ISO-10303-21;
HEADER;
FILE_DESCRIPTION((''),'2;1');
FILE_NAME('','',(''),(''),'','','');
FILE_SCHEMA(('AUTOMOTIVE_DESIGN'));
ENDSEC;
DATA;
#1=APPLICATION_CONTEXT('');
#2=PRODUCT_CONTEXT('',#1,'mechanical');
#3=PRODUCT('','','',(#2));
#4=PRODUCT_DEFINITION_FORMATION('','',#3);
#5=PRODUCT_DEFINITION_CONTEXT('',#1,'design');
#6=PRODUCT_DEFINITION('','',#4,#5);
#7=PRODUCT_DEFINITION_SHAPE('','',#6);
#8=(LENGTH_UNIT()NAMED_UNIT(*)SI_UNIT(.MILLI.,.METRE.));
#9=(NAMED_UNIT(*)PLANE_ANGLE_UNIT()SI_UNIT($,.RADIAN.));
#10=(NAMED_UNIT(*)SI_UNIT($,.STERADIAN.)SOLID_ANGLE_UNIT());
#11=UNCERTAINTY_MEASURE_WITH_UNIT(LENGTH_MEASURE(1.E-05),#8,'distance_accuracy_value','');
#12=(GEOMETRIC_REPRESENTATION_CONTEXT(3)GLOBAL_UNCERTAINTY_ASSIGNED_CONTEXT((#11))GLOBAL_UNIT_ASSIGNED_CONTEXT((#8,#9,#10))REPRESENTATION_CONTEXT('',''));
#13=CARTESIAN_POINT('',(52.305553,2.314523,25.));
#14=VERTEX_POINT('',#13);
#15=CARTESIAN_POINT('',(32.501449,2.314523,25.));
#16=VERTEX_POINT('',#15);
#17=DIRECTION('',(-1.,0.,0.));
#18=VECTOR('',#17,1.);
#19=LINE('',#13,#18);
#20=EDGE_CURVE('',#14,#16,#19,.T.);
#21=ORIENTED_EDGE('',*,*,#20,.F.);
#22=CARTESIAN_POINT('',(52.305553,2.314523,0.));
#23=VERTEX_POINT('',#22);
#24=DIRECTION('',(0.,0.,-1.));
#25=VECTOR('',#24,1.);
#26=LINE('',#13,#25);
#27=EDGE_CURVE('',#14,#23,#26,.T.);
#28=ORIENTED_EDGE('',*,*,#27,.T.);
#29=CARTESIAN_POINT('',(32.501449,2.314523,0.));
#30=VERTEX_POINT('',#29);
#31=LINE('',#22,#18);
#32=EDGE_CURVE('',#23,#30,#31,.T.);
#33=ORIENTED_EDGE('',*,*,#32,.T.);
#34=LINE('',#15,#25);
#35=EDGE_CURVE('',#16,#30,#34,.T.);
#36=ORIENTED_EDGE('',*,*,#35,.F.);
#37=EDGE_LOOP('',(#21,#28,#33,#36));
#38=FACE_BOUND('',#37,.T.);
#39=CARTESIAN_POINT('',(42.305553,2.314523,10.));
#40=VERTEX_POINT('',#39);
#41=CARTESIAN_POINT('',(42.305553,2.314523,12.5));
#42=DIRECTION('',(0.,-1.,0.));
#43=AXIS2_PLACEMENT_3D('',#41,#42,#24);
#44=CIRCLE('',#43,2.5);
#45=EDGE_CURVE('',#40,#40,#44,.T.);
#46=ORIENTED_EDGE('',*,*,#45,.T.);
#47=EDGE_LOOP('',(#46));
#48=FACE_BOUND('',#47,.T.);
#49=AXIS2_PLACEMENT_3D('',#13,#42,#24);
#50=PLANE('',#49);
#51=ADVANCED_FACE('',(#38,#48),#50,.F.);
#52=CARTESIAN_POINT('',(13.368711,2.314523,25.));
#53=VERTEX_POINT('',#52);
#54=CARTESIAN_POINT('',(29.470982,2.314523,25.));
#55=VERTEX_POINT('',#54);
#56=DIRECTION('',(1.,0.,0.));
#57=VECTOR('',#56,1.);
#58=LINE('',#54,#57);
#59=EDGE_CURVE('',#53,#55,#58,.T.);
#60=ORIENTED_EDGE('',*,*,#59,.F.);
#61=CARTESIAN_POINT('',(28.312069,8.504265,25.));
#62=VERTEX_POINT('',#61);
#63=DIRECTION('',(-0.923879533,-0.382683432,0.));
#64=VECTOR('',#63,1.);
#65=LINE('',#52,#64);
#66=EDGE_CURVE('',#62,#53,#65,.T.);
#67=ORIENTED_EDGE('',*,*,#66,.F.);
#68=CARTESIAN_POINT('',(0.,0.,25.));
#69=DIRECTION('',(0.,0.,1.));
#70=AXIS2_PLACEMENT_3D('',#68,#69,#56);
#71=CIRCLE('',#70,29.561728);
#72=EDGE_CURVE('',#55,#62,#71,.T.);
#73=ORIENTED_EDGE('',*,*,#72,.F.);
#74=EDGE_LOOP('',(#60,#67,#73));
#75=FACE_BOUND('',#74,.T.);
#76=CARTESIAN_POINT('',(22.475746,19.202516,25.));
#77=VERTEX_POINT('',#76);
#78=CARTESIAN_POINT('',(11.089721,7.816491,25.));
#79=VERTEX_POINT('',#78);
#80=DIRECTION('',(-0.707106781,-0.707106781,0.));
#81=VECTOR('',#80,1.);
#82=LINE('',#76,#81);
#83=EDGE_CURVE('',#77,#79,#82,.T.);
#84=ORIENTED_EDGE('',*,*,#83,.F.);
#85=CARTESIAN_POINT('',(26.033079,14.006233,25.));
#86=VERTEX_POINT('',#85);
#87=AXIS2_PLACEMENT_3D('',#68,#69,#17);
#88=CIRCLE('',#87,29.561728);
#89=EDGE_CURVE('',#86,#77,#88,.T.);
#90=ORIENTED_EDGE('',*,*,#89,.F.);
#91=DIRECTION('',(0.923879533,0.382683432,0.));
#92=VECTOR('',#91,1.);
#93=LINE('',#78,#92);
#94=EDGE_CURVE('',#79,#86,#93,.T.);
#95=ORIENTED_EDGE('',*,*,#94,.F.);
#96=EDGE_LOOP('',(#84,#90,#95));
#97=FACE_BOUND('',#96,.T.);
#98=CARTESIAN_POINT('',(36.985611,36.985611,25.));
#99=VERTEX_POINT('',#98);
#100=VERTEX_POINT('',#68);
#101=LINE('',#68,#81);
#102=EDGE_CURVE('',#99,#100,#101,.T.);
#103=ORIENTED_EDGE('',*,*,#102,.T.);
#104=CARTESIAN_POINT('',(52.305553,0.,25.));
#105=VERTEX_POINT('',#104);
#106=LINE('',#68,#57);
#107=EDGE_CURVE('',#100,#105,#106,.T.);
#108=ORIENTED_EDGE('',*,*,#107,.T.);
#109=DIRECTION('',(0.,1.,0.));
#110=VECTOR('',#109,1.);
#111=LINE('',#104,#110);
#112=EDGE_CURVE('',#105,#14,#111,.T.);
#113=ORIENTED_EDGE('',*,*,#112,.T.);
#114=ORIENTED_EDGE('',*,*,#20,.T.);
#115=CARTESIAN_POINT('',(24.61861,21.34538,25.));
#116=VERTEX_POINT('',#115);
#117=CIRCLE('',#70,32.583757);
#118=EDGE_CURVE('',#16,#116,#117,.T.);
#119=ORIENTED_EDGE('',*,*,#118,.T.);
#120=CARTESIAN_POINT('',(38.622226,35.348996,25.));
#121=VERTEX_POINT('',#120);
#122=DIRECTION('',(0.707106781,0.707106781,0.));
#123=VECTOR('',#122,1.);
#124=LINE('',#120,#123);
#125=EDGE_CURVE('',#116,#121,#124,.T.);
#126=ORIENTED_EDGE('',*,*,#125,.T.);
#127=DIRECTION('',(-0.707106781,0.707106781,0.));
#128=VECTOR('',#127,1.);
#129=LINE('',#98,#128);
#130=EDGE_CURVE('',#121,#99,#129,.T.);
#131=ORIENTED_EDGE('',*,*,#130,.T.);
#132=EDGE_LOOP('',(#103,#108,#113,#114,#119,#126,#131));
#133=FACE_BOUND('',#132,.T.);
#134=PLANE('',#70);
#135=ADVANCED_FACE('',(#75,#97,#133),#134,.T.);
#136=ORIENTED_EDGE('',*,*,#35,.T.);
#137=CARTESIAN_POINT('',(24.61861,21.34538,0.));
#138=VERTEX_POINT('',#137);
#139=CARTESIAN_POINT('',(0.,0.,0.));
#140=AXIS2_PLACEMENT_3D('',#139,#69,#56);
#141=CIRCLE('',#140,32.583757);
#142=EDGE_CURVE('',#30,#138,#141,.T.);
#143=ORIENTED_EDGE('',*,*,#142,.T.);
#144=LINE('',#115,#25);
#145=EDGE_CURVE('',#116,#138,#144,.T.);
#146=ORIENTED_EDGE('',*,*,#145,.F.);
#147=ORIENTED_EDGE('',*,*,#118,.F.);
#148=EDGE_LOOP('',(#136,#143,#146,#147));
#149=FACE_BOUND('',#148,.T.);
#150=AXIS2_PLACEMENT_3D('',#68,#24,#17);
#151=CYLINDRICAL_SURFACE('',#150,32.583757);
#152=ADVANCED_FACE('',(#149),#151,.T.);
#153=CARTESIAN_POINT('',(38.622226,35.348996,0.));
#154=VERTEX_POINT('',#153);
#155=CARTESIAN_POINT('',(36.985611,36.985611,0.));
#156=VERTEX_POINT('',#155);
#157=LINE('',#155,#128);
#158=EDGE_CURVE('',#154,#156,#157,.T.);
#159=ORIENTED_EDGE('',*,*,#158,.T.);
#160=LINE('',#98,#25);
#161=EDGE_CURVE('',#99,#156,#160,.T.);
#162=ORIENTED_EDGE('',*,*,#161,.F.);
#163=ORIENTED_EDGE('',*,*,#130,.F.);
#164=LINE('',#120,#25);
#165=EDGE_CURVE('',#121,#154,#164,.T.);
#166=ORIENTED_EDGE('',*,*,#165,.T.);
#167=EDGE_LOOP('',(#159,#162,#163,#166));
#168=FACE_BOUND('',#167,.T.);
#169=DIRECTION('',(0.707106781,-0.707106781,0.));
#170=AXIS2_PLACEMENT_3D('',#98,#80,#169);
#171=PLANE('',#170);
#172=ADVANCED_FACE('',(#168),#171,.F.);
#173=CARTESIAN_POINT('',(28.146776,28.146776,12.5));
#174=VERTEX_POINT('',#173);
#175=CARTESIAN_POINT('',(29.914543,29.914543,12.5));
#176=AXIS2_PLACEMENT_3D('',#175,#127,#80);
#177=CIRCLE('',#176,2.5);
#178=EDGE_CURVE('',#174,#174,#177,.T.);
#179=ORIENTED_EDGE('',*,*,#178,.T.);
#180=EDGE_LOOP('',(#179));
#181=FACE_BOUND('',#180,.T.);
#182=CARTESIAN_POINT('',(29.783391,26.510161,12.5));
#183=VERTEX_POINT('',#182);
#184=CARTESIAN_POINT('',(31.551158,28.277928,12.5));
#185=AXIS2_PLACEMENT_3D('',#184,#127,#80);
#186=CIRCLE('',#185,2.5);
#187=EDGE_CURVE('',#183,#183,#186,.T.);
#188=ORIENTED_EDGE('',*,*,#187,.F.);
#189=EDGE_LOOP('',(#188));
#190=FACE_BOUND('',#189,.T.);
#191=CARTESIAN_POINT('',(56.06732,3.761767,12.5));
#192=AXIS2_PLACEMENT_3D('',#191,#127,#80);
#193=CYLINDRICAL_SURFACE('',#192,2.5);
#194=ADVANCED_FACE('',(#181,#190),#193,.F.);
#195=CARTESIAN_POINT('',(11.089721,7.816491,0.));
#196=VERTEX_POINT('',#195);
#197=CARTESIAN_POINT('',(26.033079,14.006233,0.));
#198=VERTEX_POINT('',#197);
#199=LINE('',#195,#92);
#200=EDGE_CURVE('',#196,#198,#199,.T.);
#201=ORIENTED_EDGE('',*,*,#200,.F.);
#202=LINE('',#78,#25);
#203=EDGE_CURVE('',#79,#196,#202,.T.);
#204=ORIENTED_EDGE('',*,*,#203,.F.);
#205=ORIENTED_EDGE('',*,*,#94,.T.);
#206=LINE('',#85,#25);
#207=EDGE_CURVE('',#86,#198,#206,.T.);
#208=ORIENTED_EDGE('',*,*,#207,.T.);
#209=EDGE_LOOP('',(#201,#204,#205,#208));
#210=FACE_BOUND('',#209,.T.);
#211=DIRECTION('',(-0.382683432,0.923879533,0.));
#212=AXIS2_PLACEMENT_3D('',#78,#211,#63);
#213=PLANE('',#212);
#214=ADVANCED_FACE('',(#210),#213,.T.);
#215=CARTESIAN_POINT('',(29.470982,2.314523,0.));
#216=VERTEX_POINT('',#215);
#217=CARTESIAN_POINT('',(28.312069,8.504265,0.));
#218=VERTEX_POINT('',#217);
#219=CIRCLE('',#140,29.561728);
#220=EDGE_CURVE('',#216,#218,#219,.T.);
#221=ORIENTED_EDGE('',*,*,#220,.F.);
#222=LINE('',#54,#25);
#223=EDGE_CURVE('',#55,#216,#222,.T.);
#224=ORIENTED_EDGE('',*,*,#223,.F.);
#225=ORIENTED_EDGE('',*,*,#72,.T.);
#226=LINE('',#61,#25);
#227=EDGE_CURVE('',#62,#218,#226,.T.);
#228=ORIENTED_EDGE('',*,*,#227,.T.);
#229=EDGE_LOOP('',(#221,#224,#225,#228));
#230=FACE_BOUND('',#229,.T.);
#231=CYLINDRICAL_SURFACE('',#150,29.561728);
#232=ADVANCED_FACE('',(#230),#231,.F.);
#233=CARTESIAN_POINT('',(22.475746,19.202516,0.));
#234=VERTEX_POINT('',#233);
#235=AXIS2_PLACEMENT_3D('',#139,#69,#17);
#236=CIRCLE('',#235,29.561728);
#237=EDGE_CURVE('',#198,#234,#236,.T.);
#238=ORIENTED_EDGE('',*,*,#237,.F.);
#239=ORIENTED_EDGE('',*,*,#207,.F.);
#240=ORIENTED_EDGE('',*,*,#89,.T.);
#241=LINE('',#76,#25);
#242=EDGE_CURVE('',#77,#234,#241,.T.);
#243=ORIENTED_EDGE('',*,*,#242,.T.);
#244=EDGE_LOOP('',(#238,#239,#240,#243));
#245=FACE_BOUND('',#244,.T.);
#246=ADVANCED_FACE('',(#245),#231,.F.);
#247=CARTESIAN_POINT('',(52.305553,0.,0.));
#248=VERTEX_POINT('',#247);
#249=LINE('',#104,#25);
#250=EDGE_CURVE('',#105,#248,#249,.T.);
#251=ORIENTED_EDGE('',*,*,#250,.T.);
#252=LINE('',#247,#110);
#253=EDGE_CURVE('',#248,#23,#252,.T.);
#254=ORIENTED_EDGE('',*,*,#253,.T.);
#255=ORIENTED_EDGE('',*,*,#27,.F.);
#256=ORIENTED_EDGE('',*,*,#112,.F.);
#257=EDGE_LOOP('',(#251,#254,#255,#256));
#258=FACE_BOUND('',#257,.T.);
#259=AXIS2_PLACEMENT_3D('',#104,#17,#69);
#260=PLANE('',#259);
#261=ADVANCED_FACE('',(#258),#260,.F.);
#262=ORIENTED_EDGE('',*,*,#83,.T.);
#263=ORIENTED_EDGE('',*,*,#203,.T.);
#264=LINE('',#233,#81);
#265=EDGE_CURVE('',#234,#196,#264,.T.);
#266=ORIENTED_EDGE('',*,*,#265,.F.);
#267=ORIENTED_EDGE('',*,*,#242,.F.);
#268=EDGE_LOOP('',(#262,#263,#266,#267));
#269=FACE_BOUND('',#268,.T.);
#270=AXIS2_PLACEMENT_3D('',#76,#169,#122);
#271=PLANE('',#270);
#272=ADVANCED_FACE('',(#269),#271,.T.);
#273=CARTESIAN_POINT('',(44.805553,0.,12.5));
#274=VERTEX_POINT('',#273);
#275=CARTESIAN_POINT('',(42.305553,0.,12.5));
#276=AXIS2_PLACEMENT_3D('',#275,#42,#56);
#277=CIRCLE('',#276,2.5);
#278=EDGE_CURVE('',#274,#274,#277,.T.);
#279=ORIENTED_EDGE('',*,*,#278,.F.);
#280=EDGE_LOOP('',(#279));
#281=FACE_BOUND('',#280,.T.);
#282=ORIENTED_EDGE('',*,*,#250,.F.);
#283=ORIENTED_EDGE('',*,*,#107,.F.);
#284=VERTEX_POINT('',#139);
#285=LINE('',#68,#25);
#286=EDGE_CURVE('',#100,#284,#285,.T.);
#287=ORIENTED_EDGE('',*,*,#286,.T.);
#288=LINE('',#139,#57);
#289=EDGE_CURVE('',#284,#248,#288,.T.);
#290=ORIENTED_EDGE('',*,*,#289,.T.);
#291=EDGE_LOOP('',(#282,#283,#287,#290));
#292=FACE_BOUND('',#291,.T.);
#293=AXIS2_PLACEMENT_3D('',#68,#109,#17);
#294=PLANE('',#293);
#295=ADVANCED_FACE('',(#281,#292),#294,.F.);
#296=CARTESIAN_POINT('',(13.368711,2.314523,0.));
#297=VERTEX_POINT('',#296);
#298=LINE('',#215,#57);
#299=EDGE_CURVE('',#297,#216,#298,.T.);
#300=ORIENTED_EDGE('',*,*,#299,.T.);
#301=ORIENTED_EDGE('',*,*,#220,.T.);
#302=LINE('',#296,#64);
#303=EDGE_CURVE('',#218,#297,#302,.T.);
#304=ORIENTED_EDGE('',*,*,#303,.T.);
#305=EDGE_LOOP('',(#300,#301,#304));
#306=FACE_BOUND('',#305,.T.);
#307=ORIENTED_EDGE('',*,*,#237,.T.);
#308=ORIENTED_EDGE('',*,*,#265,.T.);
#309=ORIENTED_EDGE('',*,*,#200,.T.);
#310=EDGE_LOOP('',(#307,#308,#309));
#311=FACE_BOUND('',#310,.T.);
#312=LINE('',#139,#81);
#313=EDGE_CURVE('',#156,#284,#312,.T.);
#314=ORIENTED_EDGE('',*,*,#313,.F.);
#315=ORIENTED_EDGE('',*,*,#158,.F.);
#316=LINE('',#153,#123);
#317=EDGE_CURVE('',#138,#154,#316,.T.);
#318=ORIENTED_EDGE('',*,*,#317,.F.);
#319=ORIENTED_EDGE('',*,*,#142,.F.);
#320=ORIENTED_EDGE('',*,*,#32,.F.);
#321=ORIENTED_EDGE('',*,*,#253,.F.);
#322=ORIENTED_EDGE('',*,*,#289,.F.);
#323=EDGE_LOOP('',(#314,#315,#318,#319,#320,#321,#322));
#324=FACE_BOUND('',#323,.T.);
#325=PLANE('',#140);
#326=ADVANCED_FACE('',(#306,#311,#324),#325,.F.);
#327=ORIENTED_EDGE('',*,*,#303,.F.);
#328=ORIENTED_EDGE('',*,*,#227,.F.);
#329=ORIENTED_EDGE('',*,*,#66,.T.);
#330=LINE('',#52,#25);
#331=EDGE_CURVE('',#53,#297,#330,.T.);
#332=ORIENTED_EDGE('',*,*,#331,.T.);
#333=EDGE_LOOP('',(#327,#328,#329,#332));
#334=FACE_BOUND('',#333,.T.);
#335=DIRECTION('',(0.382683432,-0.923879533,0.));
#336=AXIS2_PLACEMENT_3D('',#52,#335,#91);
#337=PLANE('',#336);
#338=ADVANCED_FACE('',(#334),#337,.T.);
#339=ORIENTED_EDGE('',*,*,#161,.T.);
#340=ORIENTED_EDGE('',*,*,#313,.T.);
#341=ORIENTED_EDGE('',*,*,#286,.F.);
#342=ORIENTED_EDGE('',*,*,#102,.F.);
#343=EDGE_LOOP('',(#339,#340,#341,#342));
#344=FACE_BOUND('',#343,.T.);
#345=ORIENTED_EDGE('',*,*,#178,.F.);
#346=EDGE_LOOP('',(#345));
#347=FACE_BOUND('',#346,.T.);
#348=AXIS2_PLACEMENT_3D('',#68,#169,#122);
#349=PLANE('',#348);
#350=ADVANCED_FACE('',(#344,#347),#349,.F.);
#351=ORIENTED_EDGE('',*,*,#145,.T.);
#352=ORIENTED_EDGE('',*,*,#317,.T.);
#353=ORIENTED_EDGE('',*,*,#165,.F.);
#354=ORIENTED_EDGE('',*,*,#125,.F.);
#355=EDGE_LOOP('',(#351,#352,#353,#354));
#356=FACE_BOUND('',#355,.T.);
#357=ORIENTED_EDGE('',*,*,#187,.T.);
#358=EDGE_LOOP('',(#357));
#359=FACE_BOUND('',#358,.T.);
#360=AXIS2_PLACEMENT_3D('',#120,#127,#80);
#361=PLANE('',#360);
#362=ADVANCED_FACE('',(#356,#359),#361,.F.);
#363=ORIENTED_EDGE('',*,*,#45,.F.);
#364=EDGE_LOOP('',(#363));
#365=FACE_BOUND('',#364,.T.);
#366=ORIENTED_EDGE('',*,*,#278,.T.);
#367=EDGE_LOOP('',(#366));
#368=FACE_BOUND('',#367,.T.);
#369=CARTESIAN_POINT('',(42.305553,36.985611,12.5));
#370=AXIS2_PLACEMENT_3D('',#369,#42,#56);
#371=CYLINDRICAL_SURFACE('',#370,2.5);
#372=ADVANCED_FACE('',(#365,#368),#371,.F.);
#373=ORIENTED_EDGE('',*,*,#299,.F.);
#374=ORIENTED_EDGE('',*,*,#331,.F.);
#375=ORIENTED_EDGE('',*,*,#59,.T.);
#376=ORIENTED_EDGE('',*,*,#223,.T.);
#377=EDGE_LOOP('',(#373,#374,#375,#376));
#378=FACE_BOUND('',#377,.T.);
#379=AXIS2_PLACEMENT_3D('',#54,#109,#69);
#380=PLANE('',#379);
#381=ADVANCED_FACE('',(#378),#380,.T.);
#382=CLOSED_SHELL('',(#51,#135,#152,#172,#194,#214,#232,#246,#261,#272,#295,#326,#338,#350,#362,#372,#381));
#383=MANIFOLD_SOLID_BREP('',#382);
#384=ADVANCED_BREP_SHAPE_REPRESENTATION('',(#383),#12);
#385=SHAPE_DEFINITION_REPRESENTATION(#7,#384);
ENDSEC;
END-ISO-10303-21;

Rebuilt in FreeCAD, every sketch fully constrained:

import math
import FreeCAD as App
import Part
import Sketcher

V = App.Vector
Q = App.Units.Quantity

doc = App.newDocument("Part")
body = doc.addObject("PartDesign::Body", "Body")

# Sketch on XY plane
sketch1 = body.newObject("Sketcher::SketchObject", "Sketch")
sketch1.AttachmentSupport = (doc.getObject("XY_Plane"), [""])
sketch1.MapMode = "FlatFace"
sketch1.addGeometry([
    Part.LineSegment(V(0, 0, 0), V(52.3, 0, 0)),  # 0
    Part.LineSegment(V(52.3, 0, 0), V(52.3, 2.3, 0)),  # 1
    Part.LineSegment(V(52.3, 2.3, 0), V(32.5, 2.3, 0)),  # 2
    Part.ArcOfCircle(Part.Circle(V(0, 0, 0), V(0, 0, 1), 32.6), math.radians(4), math.radians(41)),  # 3
    Part.LineSegment(V(24.6, 21.3, 0), V(38.6, 35.3, 0)),  # 4
    Part.LineSegment(V(38.6, 35.3, 0), V(37, 37, 0)),  # 5
    Part.LineSegment(V(37, 37, 0), V(0, 0, 0)),  # 6
    Part.ArcOfCircle(Part.Circle(V(0, 0, 0), V(0, 0, 1), 29.6), math.radians(4.49), math.radians(16.72)),  # 7
    Part.LineSegment(V(29.5, 2.3, 0), V(13.4, 2.3, 0)),  # 8
    Part.LineSegment(V(13.4, 2.3, 0), V(28.3, 8.5, 0)),  # 9
    Part.LineSegment(V(26, 14, 0), V(11.1, 7.8, 0)),  # 10
    Part.LineSegment(V(11.1, 7.8, 0), V(22.5, 19.2, 0)),  # 11
    Part.ArcOfCircle(Part.Circle(V(0, 0, 0), V(0, 0, 1), 29.6), math.radians(28.28), math.radians(40.51)),  # 12
], False)
sketch1.addConstraint([
    Sketcher.Constraint("Coincident", 0, 2, 1, 1),
    Sketcher.Constraint("Coincident", 1, 2, 2, 1),
    Sketcher.Constraint("Coincident", 2, 2, 3, 1),
    Sketcher.Constraint("Coincident", 3, 2, 4, 1),
    Sketcher.Constraint("Coincident", 4, 2, 5, 1),
    Sketcher.Constraint("Coincident", 5, 2, 6, 1),
    Sketcher.Constraint("Coincident", 6, 2, 0, 1),
    Sketcher.Constraint("Coincident", 7, 1, 8, 1),
    Sketcher.Constraint("Coincident", 8, 2, 9, 1),
    Sketcher.Constraint("Coincident", 9, 2, 7, 2),
    Sketcher.Constraint("Coincident", 10, 2, 11, 1),
    Sketcher.Constraint("Coincident", 11, 2, 12, 2),
    Sketcher.Constraint("Coincident", 12, 1, 10, 1),
    Sketcher.Constraint("Horizontal", 0),
    Sketcher.Constraint("Vertical", 1),
    Sketcher.Constraint("Horizontal", 2),
    Sketcher.Constraint("Horizontal", 8),
    Sketcher.Constraint("Coincident", 3, 3, -1, 1),
    Sketcher.Constraint("Coincident", 7, 3, -1, 1),
    Sketcher.Constraint("Coincident", 12, 3, -1, 1),
    Sketcher.Constraint("Coincident", 6, 2, -1, 1),
    Sketcher.Constraint("Equal", 7, 12),
    Sketcher.Constraint("Perpendicular", 4, 5),
    Sketcher.Constraint("Perpendicular", 5, 6),
    Sketcher.Constraint("Parallel", 9, 10),
    Sketcher.Constraint("Parallel", 6, 11),
    Sketcher.Constraint("Horizontal", 2, 2, 7, 1),
    Sketcher.Constraint("Equal", 9, 10),
    Sketcher.Constraint("Angle", 4, Q("45 deg")),
    Sketcher.Constraint("Angle", 9, Q("22.5 deg")),
    Sketcher.Constraint("Radius", 7, 29.561728),
    Sketcher.Constraint("Radius", 3, 32.583757),
    Sketcher.Constraint("DistanceX", 3, 2, 5, 2, 12.367001),
    Sketcher.Constraint("DistanceX", 8, 2, 8, 1, 16.102271),
    Sketcher.Constraint("Distance", 11, 16.102271),
    Sketcher.Constraint("DistanceX", 0, 1, 0, 2, 52.305553),
    Sketcher.Constraint("DistanceX", 2, 2, 2, 1, 19.804104),
    Sketcher.Constraint("DistanceX", -1, 1, 3, 2, 24.61861),
])
pad1 = body.newObject("PartDesign::Pad", "Pad")
pad1.Profile = sketch1
pad1.Length = 25

# Sketch on XZ plane
sketch2 = body.newObject("Sketcher::SketchObject", "Sketch001")
sketch2.AttachmentSupport = (doc.getObject("XZ_Plane"), [""])
sketch2.MapMode = "FlatFace"
sketch2.addGeometry(Part.Circle(V(42.3, 12.5, 0), V(0, 0, 1), 2.5), False)
sketch2.addConstraint([
    Sketcher.Constraint("Diameter", 0, 5.0),
    Sketcher.Constraint("DistanceY", -1, 1, 0, 3, 12.5),
    Sketcher.Constraint("DistanceX", -1, 1, 0, 3, 42.305553),
])
pocket1 = body.newObject("PartDesign::Pocket", "Pocket")
pocket1.Profile = sketch2
pocket1.Type = "ThroughAll"

# Sketch on an angled plane
sketch3 = body.newObject("Sketcher::SketchObject", "Sketch002")
sketch3.Placement = App.Placement(V(0, 0, 0), App.Rotation(V(0, 0, 1), V(0.707106781, 0.707106781, 0), V(-0.707106781, 0.707106781, 0), "ZXY"))
sketch3.addGeometry(Part.Circle(V(12.5, 42.3, 0), V(0, 0, 1), 2.5), False)
sketch3.addConstraint([
    Sketcher.Constraint("Diameter", 0, 5.0),
    Sketcher.Constraint("DistanceX", -1, 1, 0, 3, 12.5),
    Sketcher.Constraint("DistanceY", -1, 1, 0, 3, 42.305553),
])
pocket2 = body.newObject("PartDesign::Pocket", "Pocket001")
pocket2.Profile = sketch3
pocket2.Type = "ThroughAll"

doc.recompute()
